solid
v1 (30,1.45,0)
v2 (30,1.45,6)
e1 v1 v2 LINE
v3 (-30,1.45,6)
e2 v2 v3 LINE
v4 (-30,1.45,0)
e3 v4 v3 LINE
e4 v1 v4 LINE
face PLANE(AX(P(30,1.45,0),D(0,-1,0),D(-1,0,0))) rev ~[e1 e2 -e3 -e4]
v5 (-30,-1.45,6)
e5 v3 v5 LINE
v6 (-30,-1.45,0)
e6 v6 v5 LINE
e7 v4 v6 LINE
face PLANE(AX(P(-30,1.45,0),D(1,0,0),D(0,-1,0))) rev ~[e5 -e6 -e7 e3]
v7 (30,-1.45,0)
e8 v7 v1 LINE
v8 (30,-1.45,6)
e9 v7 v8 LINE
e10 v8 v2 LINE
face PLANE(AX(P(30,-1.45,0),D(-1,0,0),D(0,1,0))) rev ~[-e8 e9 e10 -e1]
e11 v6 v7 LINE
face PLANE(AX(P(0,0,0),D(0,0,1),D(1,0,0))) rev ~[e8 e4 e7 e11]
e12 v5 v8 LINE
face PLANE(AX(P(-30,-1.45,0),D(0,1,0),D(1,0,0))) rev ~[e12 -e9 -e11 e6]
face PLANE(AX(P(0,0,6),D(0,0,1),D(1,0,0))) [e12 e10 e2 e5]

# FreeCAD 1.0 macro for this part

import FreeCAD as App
import Part
import Sketcher

V = App.Vector
Q = App.Units.Quantity


def add_polygon(sketch, points):
    """Adds a closed chain of lines whose ends are joined by coincident constraints."""
    first, n = sketch.GeometryCount, len(points)
    for a, b in zip(points, points[1:] + points[:1]):
        sketch.addGeometry(Part.LineSegment(App.Vector(*a, 0), App.Vector(*b, 0)), False)
    for i in range(n):
        sketch.addConstraint(Sketcher.Constraint("Coincident", first + i, 2, first + (i + 1) % n, 1))

doc = App.newDocument("Part")
params = doc.addObject("Spreadsheet::Sheet", "Params")
for row, (alias, value) in enumerate([
    ("sketch1_width", "60 mm"),
    ("sketch1_height", "2.9 mm"),
    ("pad1_length", "6 mm"),
], start=1):
    params.set(f"A{row}", alias)
    params.set(f"B{row}", "=" + value)
    params.setAlias(f"B{row}", alias)

body = doc.addObject("PartDesign::Body", "Body")

sketch1 = body.newObject("Sketcher::SketchObject", "Sketch")
sketch1.AttachmentSupport = (doc.getObject("XY_Plane"), [""])
sketch1.MapMode = "FlatFace"
add_polygon(sketch1, [(-30, 1.45), (-30, -1.45), (30, -1.45), (30, 1.45)])
sketch1.addConstraint([
    Sketcher.Constraint("Vertical", 0),
    Sketcher.Constraint("Horizontal", 1),
    Sketcher.Constraint("Vertical", 2),
    Sketcher.Constraint("Horizontal", 3),
    Sketcher.Constraint("Symmetric", 0, 2, 2, 2, -1, 1),
    Sketcher.Constraint("DistanceX", 1, 1, 1, 2, Q("60 mm")),
    Sketcher.Constraint("DistanceY", 0, 2, 0, 1, Q("2.9 mm")),
])
sketch1.setExpression("Constraints[9]", "Params.sketch1_width")
sketch1.setExpression("Constraints[10]", "Params.sketch1_height")
pad1 = body.newObject("PartDesign::Pad", "Pad")
pad1.Profile = sketch1
pad1.setExpression("Length", "Params.pad1_length")

doc.recompute()
